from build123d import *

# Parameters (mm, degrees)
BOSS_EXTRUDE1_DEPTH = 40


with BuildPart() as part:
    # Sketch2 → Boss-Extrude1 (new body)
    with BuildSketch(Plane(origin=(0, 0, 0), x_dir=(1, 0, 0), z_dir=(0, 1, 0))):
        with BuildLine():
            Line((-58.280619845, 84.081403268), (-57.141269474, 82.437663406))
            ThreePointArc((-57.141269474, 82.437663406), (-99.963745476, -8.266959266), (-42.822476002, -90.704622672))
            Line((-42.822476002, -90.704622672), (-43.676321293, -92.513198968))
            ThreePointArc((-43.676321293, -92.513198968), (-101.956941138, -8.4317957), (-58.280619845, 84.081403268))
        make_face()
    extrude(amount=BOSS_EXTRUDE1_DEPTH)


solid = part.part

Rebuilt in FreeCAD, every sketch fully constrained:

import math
import FreeCAD as App
import Part
import Sketcher
from FreeCAD import Vector
Q = App.Units.Quantity

doc = App.newDocument("Part")
body = doc.addObject("PartDesign::Body", "Body")

sketch1 = doc.addObject("Sketcher::SketchObject", "Sketch")
body.addObject(sketch1)
sketch1.AttachmentSupport = (doc.XZ_Plane, [""])
sketch1.MapMode = "FlatFace"
sketch1.addGeometry([
    Part.LineSegment(Vector(-57.1, -82.4, 0), Vector(-58.3, -84.1, 0)),
    Part.ArcOfCircle(Part.Circle(Vector(0, 0, 0), Vector(0, 0, 1), 102.3), math.radians(115), math.radians(235)),
    Part.LineSegment(Vector(-43.7, 92.5, 0), Vector(-42.8, 90.7, 0)),
    Part.ArcOfCircle(Part.Circle(Vector(0, 0, 0), Vector(0, 0, 1), 100.3), math.radians(115), math.radians(235)),
], False)
sketch1.addConstraint([
    Sketcher.Constraint("Coincident", 0, 2, 1, 2),
    Sketcher.Constraint("Coincident", 1, 1, 2, 1),
    Sketcher.Constraint("Coincident", 2, 2, 3, 1),
    Sketcher.Constraint("Coincident", 3, 2, 0, 1),
    Sketcher.Constraint("Coincident", 1, 3, -1, 1),
    Sketcher.Constraint("Coincident", 3, 3, -1, 1),
    Sketcher.Constraint("Distance", 0, Q("2 mm")),
    Sketcher.Constraint("Radius", 1, Q("102.305 mm")),
    Sketcher.Constraint("DistanceY", -1, 1, 1, 1, Q("92.513199 mm")),
    Sketcher.Constraint("DistanceX", 0, 2, 1, 1, Q("14.604299 mm")),
    Sketcher.Constraint("DistanceX", 3, 2, -1, 1, Q("57.141269 mm")),
    Sketcher.Constraint("DistanceX", 2, 2, -1, 1, Q("42.822476 mm")),
])
pad1 = doc.addObject("PartDesign::Pad", "Pad")
body.addObject(pad1)
pad1.Profile = sketch1
pad1.Length = 40
pad1.Reversed = True

doc.recompute()
